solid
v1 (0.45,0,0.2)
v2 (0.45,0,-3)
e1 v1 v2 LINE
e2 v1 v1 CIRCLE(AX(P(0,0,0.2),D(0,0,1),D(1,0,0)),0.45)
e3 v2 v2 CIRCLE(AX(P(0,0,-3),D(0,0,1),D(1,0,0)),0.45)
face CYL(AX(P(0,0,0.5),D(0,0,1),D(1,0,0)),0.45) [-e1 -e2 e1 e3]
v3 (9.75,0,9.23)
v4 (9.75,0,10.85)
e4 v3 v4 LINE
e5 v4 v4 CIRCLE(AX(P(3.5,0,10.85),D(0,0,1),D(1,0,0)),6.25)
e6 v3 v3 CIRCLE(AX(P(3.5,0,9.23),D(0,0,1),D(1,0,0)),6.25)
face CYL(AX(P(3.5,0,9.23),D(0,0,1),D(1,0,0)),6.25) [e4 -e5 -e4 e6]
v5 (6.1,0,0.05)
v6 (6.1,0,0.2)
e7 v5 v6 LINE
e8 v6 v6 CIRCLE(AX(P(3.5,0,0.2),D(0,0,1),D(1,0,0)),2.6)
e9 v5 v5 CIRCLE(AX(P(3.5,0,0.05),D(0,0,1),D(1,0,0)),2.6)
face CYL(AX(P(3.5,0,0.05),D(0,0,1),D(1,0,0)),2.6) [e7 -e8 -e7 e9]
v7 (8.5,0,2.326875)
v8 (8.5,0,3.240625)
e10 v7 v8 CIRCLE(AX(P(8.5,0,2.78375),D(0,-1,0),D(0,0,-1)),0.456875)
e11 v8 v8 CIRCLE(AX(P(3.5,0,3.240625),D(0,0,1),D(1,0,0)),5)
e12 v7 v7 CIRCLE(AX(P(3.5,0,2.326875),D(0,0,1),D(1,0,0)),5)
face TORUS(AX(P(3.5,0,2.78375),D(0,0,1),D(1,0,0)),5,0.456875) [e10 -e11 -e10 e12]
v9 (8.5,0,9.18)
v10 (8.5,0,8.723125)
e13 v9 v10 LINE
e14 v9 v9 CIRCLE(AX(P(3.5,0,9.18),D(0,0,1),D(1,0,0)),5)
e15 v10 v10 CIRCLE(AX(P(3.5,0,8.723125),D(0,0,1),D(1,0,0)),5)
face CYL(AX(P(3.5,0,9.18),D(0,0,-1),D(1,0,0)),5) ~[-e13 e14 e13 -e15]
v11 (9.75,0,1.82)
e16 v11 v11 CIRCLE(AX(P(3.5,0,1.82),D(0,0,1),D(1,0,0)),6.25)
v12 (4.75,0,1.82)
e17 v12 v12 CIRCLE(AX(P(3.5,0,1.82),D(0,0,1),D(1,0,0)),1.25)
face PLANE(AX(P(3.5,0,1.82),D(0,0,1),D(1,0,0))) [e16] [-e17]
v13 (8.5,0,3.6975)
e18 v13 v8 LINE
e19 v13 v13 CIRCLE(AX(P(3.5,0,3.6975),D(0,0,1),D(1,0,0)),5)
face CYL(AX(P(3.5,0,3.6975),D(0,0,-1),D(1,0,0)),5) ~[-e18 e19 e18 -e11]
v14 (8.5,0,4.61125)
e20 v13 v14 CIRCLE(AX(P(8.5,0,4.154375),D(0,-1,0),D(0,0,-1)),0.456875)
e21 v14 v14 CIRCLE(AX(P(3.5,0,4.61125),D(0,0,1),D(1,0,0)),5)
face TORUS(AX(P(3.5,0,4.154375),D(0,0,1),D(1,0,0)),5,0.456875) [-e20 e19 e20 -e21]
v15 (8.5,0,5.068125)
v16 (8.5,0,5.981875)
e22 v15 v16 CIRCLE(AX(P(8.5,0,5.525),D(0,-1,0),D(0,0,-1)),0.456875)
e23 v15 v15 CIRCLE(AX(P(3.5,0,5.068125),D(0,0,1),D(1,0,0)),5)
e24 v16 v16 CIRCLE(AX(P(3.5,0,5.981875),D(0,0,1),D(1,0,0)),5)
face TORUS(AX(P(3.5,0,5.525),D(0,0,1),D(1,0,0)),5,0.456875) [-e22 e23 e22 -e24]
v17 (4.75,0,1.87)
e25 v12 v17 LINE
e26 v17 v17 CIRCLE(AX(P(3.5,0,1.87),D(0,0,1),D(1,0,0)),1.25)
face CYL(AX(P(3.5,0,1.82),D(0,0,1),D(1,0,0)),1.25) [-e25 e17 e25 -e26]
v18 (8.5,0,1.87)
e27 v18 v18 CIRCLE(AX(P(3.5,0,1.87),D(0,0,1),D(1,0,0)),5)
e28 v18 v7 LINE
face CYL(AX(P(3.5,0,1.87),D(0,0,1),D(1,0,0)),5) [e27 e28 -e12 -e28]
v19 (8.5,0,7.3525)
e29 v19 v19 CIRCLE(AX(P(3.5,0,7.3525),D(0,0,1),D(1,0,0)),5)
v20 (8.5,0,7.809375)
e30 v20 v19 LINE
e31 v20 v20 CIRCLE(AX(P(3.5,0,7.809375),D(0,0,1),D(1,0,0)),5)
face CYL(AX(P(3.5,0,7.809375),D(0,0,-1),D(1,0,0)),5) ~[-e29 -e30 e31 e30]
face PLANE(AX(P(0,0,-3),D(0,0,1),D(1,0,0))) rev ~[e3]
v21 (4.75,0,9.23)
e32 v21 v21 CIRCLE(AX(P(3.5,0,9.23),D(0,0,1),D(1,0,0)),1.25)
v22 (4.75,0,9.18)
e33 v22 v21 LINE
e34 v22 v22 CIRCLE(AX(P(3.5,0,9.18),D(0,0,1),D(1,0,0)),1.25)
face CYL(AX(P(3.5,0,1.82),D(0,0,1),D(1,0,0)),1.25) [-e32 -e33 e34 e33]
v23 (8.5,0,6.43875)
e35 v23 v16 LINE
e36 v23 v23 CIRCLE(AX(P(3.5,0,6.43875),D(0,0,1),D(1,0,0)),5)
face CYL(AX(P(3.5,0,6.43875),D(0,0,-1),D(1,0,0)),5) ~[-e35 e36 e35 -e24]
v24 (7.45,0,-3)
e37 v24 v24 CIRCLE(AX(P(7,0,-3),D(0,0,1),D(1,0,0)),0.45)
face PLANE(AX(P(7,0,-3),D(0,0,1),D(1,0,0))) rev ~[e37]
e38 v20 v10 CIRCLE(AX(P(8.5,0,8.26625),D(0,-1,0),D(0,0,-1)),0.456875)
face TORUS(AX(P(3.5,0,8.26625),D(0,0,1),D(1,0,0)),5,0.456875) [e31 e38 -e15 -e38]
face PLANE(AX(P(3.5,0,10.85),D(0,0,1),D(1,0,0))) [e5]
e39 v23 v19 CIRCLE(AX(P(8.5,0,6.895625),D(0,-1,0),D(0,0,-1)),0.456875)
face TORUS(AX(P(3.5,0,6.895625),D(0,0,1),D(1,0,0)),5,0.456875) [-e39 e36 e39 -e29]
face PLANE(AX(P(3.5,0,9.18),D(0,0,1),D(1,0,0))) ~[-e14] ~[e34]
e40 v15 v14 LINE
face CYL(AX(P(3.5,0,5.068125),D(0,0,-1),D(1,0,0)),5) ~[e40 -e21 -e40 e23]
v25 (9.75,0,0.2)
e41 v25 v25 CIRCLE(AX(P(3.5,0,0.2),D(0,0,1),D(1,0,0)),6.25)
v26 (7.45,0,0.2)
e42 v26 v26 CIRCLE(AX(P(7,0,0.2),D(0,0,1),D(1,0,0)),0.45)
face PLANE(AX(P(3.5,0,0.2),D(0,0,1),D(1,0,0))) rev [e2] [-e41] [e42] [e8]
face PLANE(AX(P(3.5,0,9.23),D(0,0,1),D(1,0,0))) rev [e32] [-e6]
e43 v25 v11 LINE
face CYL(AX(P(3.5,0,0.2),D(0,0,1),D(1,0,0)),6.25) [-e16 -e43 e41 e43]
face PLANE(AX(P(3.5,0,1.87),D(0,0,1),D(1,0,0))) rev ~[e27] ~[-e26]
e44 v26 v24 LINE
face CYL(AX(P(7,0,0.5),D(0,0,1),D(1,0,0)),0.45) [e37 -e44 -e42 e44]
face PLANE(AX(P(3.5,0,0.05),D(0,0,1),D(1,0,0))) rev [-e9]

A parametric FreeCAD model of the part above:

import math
import FreeCAD as App
import Part
import Sketcher

doc = App.newDocument("Part")
body = doc.addObject("PartDesign::Body", "Body")

sketch1 = body.newObject("Sketcher::SketchObject", "Sketch")
sketch1.AttachmentSupport = (doc.getObject("XZ_Plane"), [""])
sketch1.MapMode = "FlatFace"
sketch1.addGeometry(Part.LineSegment(App.Vector(3.5, 0.05, 0), App.Vector(6.1, 0.05, 0)), False)
sketch1.addGeometry(Part.LineSegment(App.Vector(6.1, 0.05, 0), App.Vector(6.1, 0.2, 0)), False)
sketch1.addGeometry(Part.LineSegment(App.Vector(6.1, 0.2, 0), App.Vector(9.75, 0.2, 0)), False)
sketch1.addGeometry(Part.LineSegment(App.Vector(9.75, 0.2, 0), App.Vector(9.75, 1.82, 0)), False)
sketch1.addGeometry(Part.LineSegment(App.Vector(9.75, 1.82, 0), App.Vector(4.75, 1.82, 0)), False)
sketch1.addGeometry(Part.LineSegment(App.Vector(4.75, 1.82, 0), App.Vector(4.75, 9.23, 0)), False)
sketch1.addGeometry(Part.LineSegment(App.Vector(4.75, 9.23, 0), App.Vector(9.75, 9.23, 0)), False)
sketch1.addGeometry(Part.LineSegment(App.Vector(9.75, 9.23, 0), App.Vector(9.75, 10.85, 0)), False)
sketch1.addGeometry(Part.LineSegment(App.Vector(9.75, 10.85, 0), App.Vector(3.5, 10.85, 0)), False)
sketch1.addGeometry(Part.LineSegment(App.Vector(3.5, 10.85, 0), App.Vector(3.5, 0.05, 0)), False)
sketch1.addGeometry(Part.LineSegment(App.Vector(3.5, 0.05, 0), App.Vector(3.5, 10.85, 0)), True)
sketch1.addConstraint(Sketcher.Constraint("Coincident", 0, 2, 1, 1))
sketch1.addConstraint(Sketcher.Constraint("Coincident", 1, 2, 2, 1))
sketch1.addConstraint(Sketcher.Constraint("Coincident", 2, 2, 3, 1))
sketch1.addConstraint(Sketcher.Constraint("Coincident", 3, 2, 4, 1))
sketch1.addConstraint(Sketcher.Constraint("Coincident", 4, 2, 5, 1))
sketch1.addConstraint(Sketcher.Constraint("Coincident", 5, 2, 6, 1))
sketch1.addConstraint(Sketcher.Constraint("Coincident", 6, 2, 7, 1))
sketch1.addConstraint(Sketcher.Constraint("Coincident", 7, 2, 8, 1))
sketch1.addConstraint(Sketcher.Constraint("Coincident", 8, 2, 9, 1))
sketch1.addConstraint(Sketcher.Constraint("Coincident", 9, 2, 0, 1))
sketch1.addConstraint(Sketcher.Constraint("Horizontal", 0))
sketch1.addConstraint(Sketcher.Constraint("Vertical", 1))
sketch1.addConstraint(Sketcher.Constraint("Horizontal", 2))
sketch1.addConstraint(Sketcher.Constraint("Vertical", 3))
sketch1.addConstraint(Sketcher.Constraint("Horizontal", 4))
sketch1.addConstraint(Sketcher.Constraint("Vertical", 5))
sketch1.addConstraint(Sketcher.Constraint("Horizontal", 6))
sketch1.addConstraint(Sketcher.Constraint("Vertical", 7))
sketch1.addConstraint(Sketcher.Constraint("Horizontal", 8))
sketch1.addConstraint(Sketcher.Constraint("Vertical", 9))
sketch1.addConstraint(Sketcher.Constraint("Vertical", 10))
sketch1.addConstraint(Sketcher.Constraint("Coincident", 10, 1, 9, 2))
sketch1.addConstraint(Sketcher.Constraint("Horizontal", 7, 2, 10, 2))
sketch1.addConstraint(Sketcher.Constraint("Vertical", 3, 2, 6, 2))
sketch1.addConstraint(Sketcher.Constraint("Equal", 3, 7))
sketch1.addConstraint(Sketcher.Constraint("DistanceX", 4, 2, 4, 1, 5.0))
sketch1.addConstraint(Sketcher.Constraint("DistanceX", 0, 1, 0, 2, 2.6))
sketch1.addConstraint(Sketcher.Constraint("DistanceY", 9, 2, 9, 1, 10.8))
sketch1.addConstraint(Sketcher.Constraint("DistanceX", 2, 1, 2, 2, 3.65))
sketch1.addConstraint(Sketcher.Constraint("DistanceY", 1, 1, 1, 2, 0.15))
sketch1.addConstraint(Sketcher.Constraint("DistanceY", 3, 1, 3, 2, 1.62))
sketch1.addConstraint(Sketcher.Constraint("DistanceX", -1, 1, 0, 2, 6.1))
sketch1.addConstraint(Sketcher.Constraint("DistanceY", -1, 1, 1, 2, 0.2))
revolution = body.newObject("PartDesign::Revolution", "Revolution")
revolution.Profile = sketch1
revolution.ReferenceAxis = (sketch1, ["Axis0"])
revolution.Angle = 360
body2 = doc.addObject("PartDesign::Body", "Body001")
body2.AllowCompound = True

sketch2 = body2.newObject("Sketcher::SketchObject", "Sketch001")
sketch2.AttachmentSupport = (doc.getObject("XY_Plane001"), [""])
sketch2.MapMode = "FlatFace"
sketch2.AttachmentOffset = App.Placement(App.Vector(0, 0, 0.5), App.Rotation())
sketch2.addGeometry(Part.Circle(App.Vector(0, 0, 0), App.Vector(0, 0, 1), 0.45), False)
sketch2.addGeometry(Part.Circle(App.Vector(7, 0, 0), App.Vector(0, 0, 1), 0.45), False)
sketch2.addConstraint(Sketcher.Constraint("Coincident", 0, 3, -1, 1))
sketch2.addConstraint(Sketcher.Constraint("Equal", 0, 1))
sketch2.addConstraint(Sketcher.Constraint("PointOnObject", 1, 3, -1))
sketch2.addConstraint(Sketcher.Constraint("Diameter", 0, 0.9))
sketch2.addConstraint(Sketcher.Constraint("DistanceX", -1, 1, 1, 3, 7.0))
pad1 = body2.newObject("PartDesign::Pad", "Pad")
pad1.Profile = sketch2
pad1.Length = 3.5
pad1.Reversed = True
body3 = doc.addObject("PartDesign::Body", "Body002")

sketch3 = body3.newObject("Sketcher::SketchObject", "Sketch002")
sketch3.AttachmentSupport = (doc.getObject("XZ_Plane002"), [""])
sketch3.MapMode = "FlatFace"
sketch3.addGeometry(Part.LineSegment(App.Vector(4.75, 1.87, 0), App.Vector(8.5, 1.87, 0)), False)
sketch3.addGeometry(Part.LineSegment(App.Vector(8.5, 1.87, 0), App.Vector(8.5, 2.33, 0)), False)
sketch3.addGeometry(Part.ArcOfCircle(Part.Circle(App.Vector(8.5, 2.78, 0), App.Vector(0, 0, 1), 0.46), math.radians(-90), math.radians(90)), False)
sketch3.addGeometry(Part.LineSegment(App.Vector(8.5, 3.24, 0), App.Vector(8.5, 3.7, 0)), False)
sketch3.addGeometry(Part.ArcOfCircle(Part.Circle(App.Vector(8.5, 4.15, 0), App.Vector(0, 0, 1), 0.46), math.radians(-90), math.radians(90)), False)
sketch3.addGeometry(Part.LineSegment(App.Vector(8.5, 4.61, 0), App.Vector(8.5, 5.07, 0)), False)
sketch3.addGeometry(Part.ArcOfCircle(Part.Circle(App.Vector(8.5, 5.53, 0), App.Vector(0, 0, 1), 0.46), math.radians(-90), math.radians(90)), False)
sketch3.addGeometry(Part.LineSegment(App.Vector(8.5, 5.98, 0), App.Vector(8.5, 6.44, 0)), False)
sketch3.addGeometry(Part.ArcOfCircle(Part.Circle(App.Vector(8.5, 6.9, 0), App.Vector(0, 0, 1), 0.46), math.radians(-90), math.radians(90)), False)
sketch3.addGeometry(Part.LineSegment(App.Vector(8.5, 7.35, 0), App.Vector(8.5, 7.81, 0)), False)
sketch3.addGeometry(Part.ArcOfCircle(Part.Circle(App.Vector(8.5, 8.27, 0), App.Vector(0, 0, 1), 0.46), math.radians(-90), math.radians(90)), False)
sketch3.addGeometry(Part.LineSegment(App.Vector(8.5, 8.72, 0), App.Vector(8.5, 9.18, 0)), False)
sketch3.addGeometry(Part.LineSegment(App.Vector(8.5, 9.18, 0), App.Vector(4.75, 9.18, 0)), False)
sketch3.addGeometry(Part.LineSegment(App.Vector(4.75, 9.18, 0), App.Vector(4.75, 1.87, 0)), False)
sketch3.addGeometry(Part.LineSegment(App.Vector(3.5, 1.87, 0), App.Vector(3.5, 9.18, 0)), True)
sketch3.addConstraint(Sketcher.Constraint("Coincident", 0, 2, 1, 1))
sketch3.addConstraint(Sketcher.Constraint("Coincident", 1, 2, 2, 1))
sketch3.addConstraint(Sketcher.Constraint("Coincident", 2, 2, 3, 1))
sketch3.addConstraint(Sketcher.Constraint("Coincident", 3, 2, 4, 1))
sketch3.addConstraint(Sketcher.Constraint("Coincident", 4, 2, 5, 1))
sketch3.addConstraint(Sketcher.Constraint("Coincident", 5, 2, 6, 1))
sketch3.addConstraint(Sketcher.Constraint("Coincident", 6, 2, 7, 1))
sketch3.addConstraint(Sketcher.Constraint("Coincident", 7, 2, 8, 1))
sketch3.addConstraint(Sketcher.Constraint("Coincident", 8, 2, 9, 1))
sketch3.addConstraint(Sketcher.Constraint("Coincident", 9, 2, 10, 1))
sketch3.addConstraint(Sketcher.Constraint("Coincident", 10, 2, 11, 1))
sketch3.addConstraint(Sketcher.Constraint("Coincident", 11, 2, 12, 1))
sketch3.addConstraint(Sketcher.Constraint("Coincident", 12, 2, 13, 1))
sketch3.addConstraint(Sketcher.Constraint("Coincident", 13, 2, 0, 1))
sketch3.addConstraint(Sketcher.Constraint("Horizontal", 0))
sketch3.addConstraint(Sketcher.Constraint("Vertical", 1))
sketch3.addConstraint(Sketcher.Constraint("Vertical", 3))
sketch3.addConstraint(Sketcher.Constraint("Vertical", 5))
sketch3.addConstraint(Sketcher.Constraint("Vertical", 7))
sketch3.addConstraint(Sketcher.Constraint("Vertical", 9))
sketch3.addConstraint(Sketcher.Constraint("Vertical", 11))
sketch3.addConstraint(Sketcher.Constraint("Horizontal", 12))
sketch3.addConstraint(Sketcher.Constraint("Vertical", 13))
sketch3.addConstraint(Sketcher.Constraint("Vertical", 14))
sketch3.addConstraint(Sketcher.Constraint("Equal", 2, 4))
sketch3.addConstraint(Sketcher.Constraint("Equal", 4, 6))
sketch3.addConstraint(Sketcher.Constraint("Equal", 6, 8))
sketch3.addConstraint(Sketcher.Constraint("Equal", 8, 10))
sketch3.addConstraint(Sketcher.Constraint("Horizontal", 13, 2, 14, 1))
sketch3.addConstraint(Sketcher.Constraint("Horizontal", 12, 2, 14, 2))
sketch3.addConstraint(Sketcher.Constraint("Vertical", 2, 3, 4, 3))
sketch3.addConstraint(Sketcher.Constraint("Vertical", 4, 3, 6, 3))
sketch3.addConstraint(Sketcher.Constraint("Vertical", 6, 3, 8, 3))
sketch3.addConstraint(Sketcher.Constraint("Vertical", 8, 3, 10, 3))
sketch3.addConstraint(Sketcher.Constraint("Vertical", 10, 3, 0, 2))
sketch3.addConstraint(Sketcher.Constraint("Vertical", 1, 2, 2, 2))
sketch3.addConstraint(Sketcher.Constraint("Vertical", 3, 2, 4, 2))
sketch3.addConstraint(Sketcher.Constraint("Vertical", 5, 2, 6, 2))
sketch3.addConstraint(Sketcher.Constraint("Vertical", 7, 2, 8, 2))
sketch3.addConstraint(Sketcher.Constraint("Vertical", 9, 2, 10, 2))
sketch3.addConstraint(Sketcher.Constraint("Equal", 1, 3))
sketch3.addConstraint(Sketcher.Constraint("Equal", 3, 5))
sketch3.addConstraint(Sketcher.Constraint("Equal", 5, 7))
sketch3.addConstraint(Sketcher.Constraint("Equal", 7, 9))
sketch3.addConstraint(Sketcher.Constraint("Equal", 9, 11))
sketch3.addConstraint(Sketcher.Constraint("DistanceX", 14, 1, 0, 2, 5.0))
sketch3.addConstraint(Sketcher.Constraint("DistanceX", 0, 1, 0, 2, 3.75))
sketch3.addConstraint(Sketcher.Constraint("DistanceY", 13, 2, 13, 1, 7.31))
sketch3.addConstraint(Sketcher.Constraint("DistanceX", -1, 1, 2, 3, 8.5))
sketch3.addConstraint(Sketcher.Constraint("DistanceY", -1, 1, 0, 2, 1.87))
sketch3.addConstraint(Sketcher.Constraint("Radius", 2, 0.456875))
revolution2 = body3.newObject("PartDesign::Revolution", "Revolution001")
revolution2.Profile = sketch3
revolution2.ReferenceAxis = (sketch3, ["Axis0"])
revolution2.Angle = 360
doc.recompute()

boolean = body3.newObject("PartDesign::Boolean", "Boolean")
boolean.Type = "Fuse"
boolean.addObjects([body])
doc.recompute()

boolean2 = body3.newObject("PartDesign::Boolean", "Boolean001")
boolean2.Type = "Fuse"
boolean2.addObjects([body2])

doc.recompute()
